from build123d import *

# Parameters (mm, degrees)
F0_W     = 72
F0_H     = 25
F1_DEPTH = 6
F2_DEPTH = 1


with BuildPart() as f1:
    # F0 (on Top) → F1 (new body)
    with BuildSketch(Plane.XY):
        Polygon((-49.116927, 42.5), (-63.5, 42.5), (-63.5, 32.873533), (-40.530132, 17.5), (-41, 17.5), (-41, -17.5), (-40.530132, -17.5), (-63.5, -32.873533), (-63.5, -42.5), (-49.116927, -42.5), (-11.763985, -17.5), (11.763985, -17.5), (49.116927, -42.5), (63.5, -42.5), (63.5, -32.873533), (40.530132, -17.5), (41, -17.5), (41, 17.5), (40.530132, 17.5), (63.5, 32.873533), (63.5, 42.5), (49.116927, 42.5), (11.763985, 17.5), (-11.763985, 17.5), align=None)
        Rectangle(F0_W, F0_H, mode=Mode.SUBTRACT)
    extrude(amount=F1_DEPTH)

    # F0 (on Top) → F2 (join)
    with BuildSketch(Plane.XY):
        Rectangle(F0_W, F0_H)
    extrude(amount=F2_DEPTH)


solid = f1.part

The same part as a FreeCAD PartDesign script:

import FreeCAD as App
import Part
import Sketcher
Q = App.Units.Quantity


def add_polygon(sketch, points):
    """Adds a closed chain of lines whose ends are joined by coincident constraints."""
    first, n = sketch.GeometryCount, len(points)
    for a, b in zip(points, points[1:] + points[:1]):
        sketch.addGeometry(Part.LineSegment(App.Vector(*a, 0), App.Vector(*b, 0)), False)
    for i in range(n):
        sketch.addConstraint(Sketcher.Constraint("Coincident", first + i, 2, first + (i + 1) % n, 1))

doc = App.newDocument("Part")
body = doc.addObject("PartDesign::Body", "Body")

# Sketch on XY plane
sketch1 = body.newObject("Sketcher::SketchObject", "Sketch")
sketch1.AttachmentSupport = (doc.getObject("XY_Plane"), [""])
sketch1.MapMode = "FlatFace"
add_polygon(sketch1, [(-49.12, 42.5), (-63.5, 42.5), (-63.5, 32.87), (-40.53, 17.5), (-41, 17.5), (-41, -17.5), (-40.53, -17.5), (-63.5, -32.87), (-63.5, -42.5), (-49.12, -42.5), (-11.76, -17.5), (11.76, -17.5), (49.12, -42.5), (63.5, -42.5), (63.5, -32.87), (40.53, -17.5), (41, -17.5), (41, 17.5), (40.53, 17.5), (63.5, 32.87), (63.5, 42.5), (49.12, 42.5), (11.76, 17.5), (-11.76, 17.5)])  # lines 0-23
add_polygon(sketch1, [(36, -12.5), (-36, -12.5), (-36, 12.5), (36, 12.5)])  # lines 24-27
sketch1.addConstraint([
    Sketcher.Constraint("Horizontal", 0),
    Sketcher.Constraint("Vertical", 1),
    Sketcher.Constraint("Horizontal", 3),
    Sketcher.Constraint("Vertical", 4),
    Sketcher.Constraint("Horizontal", 5),
    Sketcher.Constraint("Vertical", 7),
    Sketcher.Constraint("Horizontal", 8),
    Sketcher.Constraint("Horizontal", 10),
    Sketcher.Constraint("Horizontal", 12),
    Sketcher.Constraint("Vertical", 13),
    Sketcher.Constraint("Horizontal", 15),
    Sketcher.Constraint("Vertical", 16),
    Sketcher.Constraint("Horizontal", 17),
    Sketcher.Constraint("Vertical", 19),
    Sketcher.Constraint("Horizontal", 20),
    Sketcher.Constraint("Horizontal", 22),
    Sketcher.Constraint("Horizontal", 24),
    Sketcher.Constraint("Vertical", 25),
    Sketcher.Constraint("Horizontal", 26),
    Sketcher.Constraint("Vertical", 27),
    Sketcher.Constraint("Symmetric", 0, 2, 12, 2, -1, 1),
    Sketcher.Constraint("Symmetric", 2, 2, 14, 2, -1, 1),
    Sketcher.Constraint("Symmetric", 4, 2, 16, 2, -1, 1),
    Sketcher.Constraint("Symmetric", 6, 2, 18, 2, -1, 1),
    Sketcher.Constraint("Symmetric", 8, 2, 20, 2, -1, 1),
    Sketcher.Constraint("Symmetric", 9, 2, 21, 2, -1, 1),
    Sketcher.Constraint("Symmetric", 24, 2, 26, 2, -1, 1),
    Sketcher.Constraint("Symmetric", 8, 2, 11, 2, -2),
    Sketcher.Constraint("Symmetric", 6, 2, 13, 2, -2),
    Sketcher.Constraint("Symmetric", 5, 2, 14, 2, -2),
    Sketcher.Constraint("Parallel", 6, 9),
    Sketcher.Constraint("Parallel", 2, 11),
    Sketcher.Constraint("Parallel", 11, 14),
    Sketcher.Constraint("Parallel", 9, 18),
    Sketcher.Constraint("Parallel", 14, 23),
    Sketcher.Constraint("Horizontal", 5, 2, 9, 2),
    Sketcher.Constraint("Vertical", 9, 2, 22, 2),
    Sketcher.Constraint("DistanceX", 24, 2, 24, 1, Q("72 mm")),
    Sketcher.Constraint("DistanceY", 4, 2, 4, 1, Q("35 mm")),
    Sketcher.Constraint("DistanceY", 25, 1, 25, 2, Q("25 mm")),
    Sketcher.Constraint("DistanceX", 3, 2, -1, 1, Q("41 mm")),
    Sketcher.Constraint("DistanceY", 2, 2, 0, 2, Q("25 mm")),
    Sketcher.Constraint("DistanceX", 0, 2, -1, 1, Q("63.5 mm")),
    Sketcher.Constraint("DistanceX", 10, 1, 10, 2, Q("23.52797 mm")),
    Sketcher.Constraint("DistanceX", 0, 2, 0, 1, Q("14.383073 mm")),
    Sketcher.Constraint("DistanceX", 3, 2, 3, 1, Q("0.469868 mm")),
])
pad1 = body.newObject("PartDesign::Pad", "Pad")
pad1.Profile = sketch1
pad1.Length = 6

# Sketch on XY plane
sketch2 = body.newObject("Sketcher::SketchObject", "Sketch001")
sketch2.AttachmentSupport = (doc.getObject("XY_Plane"), [""])
sketch2.MapMode = "FlatFace"
add_polygon(sketch2, [(-36, 12), (-36, -12), (36, -12), (36, 12)])  # lines 0-3
sketch2.addConstraint([
    Sketcher.Constraint("Vertical", 0),
    Sketcher.Constraint("Horizontal", 1),
    Sketcher.Constraint("Vertical", 2),
    Sketcher.Constraint("Horizontal", 3),
    Sketcher.Constraint("Symmetric", 0, 2, 2, 2, -1, 1),
    Sketcher.Constraint("DistanceX", 1, 1, 1, 2, Q("72 mm")),
    Sketcher.Constraint("DistanceY", 0, 2, 0, 1, Q("25 mm")),
])
pad2 = body.newObject("PartDesign::Pad", "Pad001")
pad2.Profile = sketch2
pad2.Length = 1

doc.recompute()
